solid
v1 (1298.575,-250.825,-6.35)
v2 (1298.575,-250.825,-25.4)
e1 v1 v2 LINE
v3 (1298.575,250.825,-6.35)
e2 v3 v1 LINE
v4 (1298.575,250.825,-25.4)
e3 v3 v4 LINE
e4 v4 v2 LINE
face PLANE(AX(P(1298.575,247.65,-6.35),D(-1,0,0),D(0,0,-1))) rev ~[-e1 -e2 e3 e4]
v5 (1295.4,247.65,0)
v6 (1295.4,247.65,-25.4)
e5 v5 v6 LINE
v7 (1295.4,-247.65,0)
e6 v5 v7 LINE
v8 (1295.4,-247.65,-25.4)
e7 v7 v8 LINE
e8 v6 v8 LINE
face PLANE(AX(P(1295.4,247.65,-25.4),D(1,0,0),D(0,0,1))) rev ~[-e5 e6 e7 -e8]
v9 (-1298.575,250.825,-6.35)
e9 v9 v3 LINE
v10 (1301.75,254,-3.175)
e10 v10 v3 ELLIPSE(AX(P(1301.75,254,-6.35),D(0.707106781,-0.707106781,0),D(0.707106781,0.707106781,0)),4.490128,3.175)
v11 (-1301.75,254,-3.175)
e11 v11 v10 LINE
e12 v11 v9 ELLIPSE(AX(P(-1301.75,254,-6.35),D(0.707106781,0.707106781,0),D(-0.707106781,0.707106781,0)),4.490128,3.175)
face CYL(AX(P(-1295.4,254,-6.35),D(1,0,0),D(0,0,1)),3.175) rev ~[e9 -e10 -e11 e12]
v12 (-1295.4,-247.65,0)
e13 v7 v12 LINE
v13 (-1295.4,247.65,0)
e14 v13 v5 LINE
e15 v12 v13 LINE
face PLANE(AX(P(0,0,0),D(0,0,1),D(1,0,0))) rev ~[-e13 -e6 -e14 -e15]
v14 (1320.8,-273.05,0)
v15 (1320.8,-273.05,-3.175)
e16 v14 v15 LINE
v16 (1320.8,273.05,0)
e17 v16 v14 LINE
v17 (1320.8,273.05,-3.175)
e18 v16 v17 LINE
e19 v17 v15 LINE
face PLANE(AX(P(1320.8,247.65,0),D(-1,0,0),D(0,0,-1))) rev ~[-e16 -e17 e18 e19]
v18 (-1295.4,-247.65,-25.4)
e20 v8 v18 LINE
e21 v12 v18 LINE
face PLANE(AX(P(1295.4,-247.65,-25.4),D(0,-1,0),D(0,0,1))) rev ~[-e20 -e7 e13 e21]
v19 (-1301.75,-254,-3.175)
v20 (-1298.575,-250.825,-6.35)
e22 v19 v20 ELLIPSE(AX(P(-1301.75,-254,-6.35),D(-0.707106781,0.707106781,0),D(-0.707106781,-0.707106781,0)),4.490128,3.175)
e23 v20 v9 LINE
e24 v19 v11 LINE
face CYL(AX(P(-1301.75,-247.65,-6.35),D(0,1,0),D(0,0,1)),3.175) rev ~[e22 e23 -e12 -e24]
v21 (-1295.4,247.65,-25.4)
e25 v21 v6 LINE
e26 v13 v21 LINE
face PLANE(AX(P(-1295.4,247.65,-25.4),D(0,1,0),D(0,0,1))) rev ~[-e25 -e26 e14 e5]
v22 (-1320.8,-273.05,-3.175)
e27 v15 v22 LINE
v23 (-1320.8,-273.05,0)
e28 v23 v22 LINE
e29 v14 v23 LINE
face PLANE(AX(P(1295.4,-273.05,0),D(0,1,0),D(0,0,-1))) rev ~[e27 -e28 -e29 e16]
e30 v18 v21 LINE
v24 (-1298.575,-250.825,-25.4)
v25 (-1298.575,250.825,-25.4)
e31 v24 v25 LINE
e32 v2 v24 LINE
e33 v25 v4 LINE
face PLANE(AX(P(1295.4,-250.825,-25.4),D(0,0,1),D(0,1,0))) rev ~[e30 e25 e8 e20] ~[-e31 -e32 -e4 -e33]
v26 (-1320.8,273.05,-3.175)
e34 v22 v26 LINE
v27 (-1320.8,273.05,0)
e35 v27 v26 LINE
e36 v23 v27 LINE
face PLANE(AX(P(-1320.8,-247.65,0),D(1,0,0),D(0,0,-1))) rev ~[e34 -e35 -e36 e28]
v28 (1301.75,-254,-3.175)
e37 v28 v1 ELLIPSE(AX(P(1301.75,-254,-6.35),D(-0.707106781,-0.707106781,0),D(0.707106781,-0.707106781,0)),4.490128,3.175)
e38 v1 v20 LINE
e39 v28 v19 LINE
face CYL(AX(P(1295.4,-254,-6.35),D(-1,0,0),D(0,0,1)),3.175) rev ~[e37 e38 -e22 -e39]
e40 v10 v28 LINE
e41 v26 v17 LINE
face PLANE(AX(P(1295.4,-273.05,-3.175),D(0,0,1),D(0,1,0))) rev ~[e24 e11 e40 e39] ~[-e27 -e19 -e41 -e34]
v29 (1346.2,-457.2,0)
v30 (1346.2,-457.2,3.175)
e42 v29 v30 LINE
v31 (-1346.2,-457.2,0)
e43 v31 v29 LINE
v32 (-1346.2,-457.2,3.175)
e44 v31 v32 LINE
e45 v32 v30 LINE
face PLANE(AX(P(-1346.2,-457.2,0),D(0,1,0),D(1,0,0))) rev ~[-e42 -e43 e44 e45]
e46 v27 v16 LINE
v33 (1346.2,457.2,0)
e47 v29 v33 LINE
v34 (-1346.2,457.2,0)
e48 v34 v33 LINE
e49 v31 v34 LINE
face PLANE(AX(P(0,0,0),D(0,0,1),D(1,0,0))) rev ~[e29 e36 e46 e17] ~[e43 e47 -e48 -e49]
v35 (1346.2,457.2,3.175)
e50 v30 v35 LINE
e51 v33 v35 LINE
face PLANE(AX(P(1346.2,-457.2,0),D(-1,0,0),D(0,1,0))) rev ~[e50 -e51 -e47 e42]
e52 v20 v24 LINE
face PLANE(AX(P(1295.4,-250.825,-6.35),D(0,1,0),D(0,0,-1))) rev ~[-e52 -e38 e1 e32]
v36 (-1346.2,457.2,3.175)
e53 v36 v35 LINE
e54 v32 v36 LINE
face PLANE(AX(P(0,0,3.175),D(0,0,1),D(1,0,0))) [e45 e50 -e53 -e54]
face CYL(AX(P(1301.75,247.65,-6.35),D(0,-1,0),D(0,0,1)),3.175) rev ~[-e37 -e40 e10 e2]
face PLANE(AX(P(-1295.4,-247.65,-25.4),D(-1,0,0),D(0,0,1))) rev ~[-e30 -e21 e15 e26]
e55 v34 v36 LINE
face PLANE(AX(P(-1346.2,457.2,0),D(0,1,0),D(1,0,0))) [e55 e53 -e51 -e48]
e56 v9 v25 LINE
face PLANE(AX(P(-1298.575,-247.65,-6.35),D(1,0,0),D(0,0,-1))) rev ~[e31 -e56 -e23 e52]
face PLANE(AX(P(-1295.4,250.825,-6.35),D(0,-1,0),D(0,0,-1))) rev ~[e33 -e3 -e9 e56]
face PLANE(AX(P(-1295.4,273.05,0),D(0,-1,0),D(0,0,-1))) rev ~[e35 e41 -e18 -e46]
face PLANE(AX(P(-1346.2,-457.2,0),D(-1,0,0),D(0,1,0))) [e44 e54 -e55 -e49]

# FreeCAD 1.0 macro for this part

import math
import FreeCAD as App
import Part
import Sketcher
Q = App.Units.Quantity


def add_polygon(sketch, points):
    """Adds a closed chain of lines whose ends are joined by coincident constraints."""
    first, n = sketch.GeometryCount, len(points)
    for a, b in zip(points, points[1:] + points[:1]):
        sketch.addGeometry(Part.LineSegment(App.Vector(*a, 0), App.Vector(*b, 0)), False)
    for i in range(n):
        sketch.addConstraint(Sketcher.Constraint("Coincident", first + i, 2, first + (i + 1) % n, 1))

doc = App.newDocument("Part")
body = doc.addObject("PartDesign::Body", "Body")

# Sketch on XY plane
sketch1 = doc.addObject("Sketcher::SketchObject", "Sketch")
body.addObject(sketch1)
sketch1.AttachmentSupport = (doc.XY_Plane, [""])
sketch1.MapMode = "FlatFace"
add_polygon(sketch1, [(-1346, 457), (-1346, -457), (1346, -457), (1346, 457)])  # lines 0-3
sketch1.addConstraint([
    Sketcher.Constraint("Vertical", 0),
    Sketcher.Constraint("Horizontal", 1),
    Sketcher.Constraint("Vertical", 2),
    Sketcher.Constraint("Horizontal", 3),
    Sketcher.Constraint("Symmetric", 0, 2, 2, 2, -1, 1),
    Sketcher.Constraint("DistanceX", 1, 1, 1, 2, Q("106 in")),
    Sketcher.Constraint("DistanceY", 0, 2, 0, 1, Q("36 in")),
])
pad1 = doc.addObject("PartDesign::Pad", "Pad")
body.addObject(pad1)
pad1.Profile = sketch1
pad1.Length = Q("0.125 in")

# Sketch on XZ plane
sketch2 = doc.addObject("Sketcher::SketchObject", "Sketch001")
body.addObject(sketch2)
sketch2.AttachmentSupport = (doc.XZ_Plane, [""])
sketch2.MapMode = "FlatFace"
sketch2.addGeometry([
    Part.LineSegment(App.Vector(-1295.4, -25.4, 0), App.Vector(-1295.4, 0, 0)),  # 0
    Part.LineSegment(App.Vector(-1295.4, 0, 0), App.Vector(-1320.8, 0, 0)),  # 1
    Part.LineSegment(App.Vector(-1320.8, 0, 0), App.Vector(-1320.8, -3.2, 0)),  # 2
    Part.LineSegment(App.Vector(-1320.8, -3.2, 0), App.Vector(-1301.8, -3.2, 0)),  # 3
    Part.ArcOfCircle(Part.Circle(App.Vector(-1301.8, -6.3, 0), App.Vector(0, 0, 1), 3.2), math.radians(0), math.radians(90)),  # 4
    Part.LineSegment(App.Vector(-1298.6, -6.3, 0), App.Vector(-1298.6, -25.4, 0)),  # 5
    Part.LineSegment(App.Vector(-1298.6, -25.4, 0), App.Vector(-1295.4, -25.4, 0)),  # 6
], False)
sketch2.addConstraint([
    Sketcher.Constraint("Coincident", 0, 2, 1, 1),
    Sketcher.Constraint("Coincident", 1, 2, 2, 1),
    Sketcher.Constraint("Coincident", 2, 2, 3, 1),
    Sketcher.Constraint("Tangent", 3, 2, 4, 2),
    Sketcher.Constraint("Tangent", 4, 1, 5, 1),
    Sketcher.Constraint("Coincident", 5, 2, 6, 1),
    Sketcher.Constraint("Coincident", 6, 2, 0, 1),
    Sketcher.Constraint("Vertical", 0),
    Sketcher.Constraint("Horizontal", 1),
    Sketcher.Constraint("Vertical", 2),
    Sketcher.Constraint("Horizontal", 3),
    Sketcher.Constraint("Vertical", 5),
    Sketcher.Constraint("Horizontal", 6),
    Sketcher.Constraint("PointOnObject", 0, 2, -1),
    Sketcher.Constraint("Equal", 1, 0),
    Sketcher.Constraint("Equal", 6, 2),
    Sketcher.Constraint("DistanceX", 1, 2, 1, 1, Q("1 in")),
    Sketcher.Constraint("DistanceX", 0, 2, -1, 1, Q("51 in")),
    Sketcher.Constraint("Radius", 4, Q("0.125 in")),
    Sketcher.Constraint("DistanceX", 3, 1, 3, 2, Q("0.75 in")),
])

# Sketch on XY plane
sketch3 = doc.addObject("Sketcher::SketchObject", "Sketch002")
body.addObject(sketch3)
sketch3.AttachmentSupport = (doc.XY_Plane, [""])
sketch3.MapMode = "FlatFace"
add_polygon(sketch3, [(-1295, -248), (-1295, 248), (1295, 248), (1295, -248)])  # lines 0-3
sketch3.addConstraint([
    Sketcher.Constraint("Vertical", 0),
    Sketcher.Constraint("Horizontal", 1),
    Sketcher.Constraint("Vertical", 2),
    Sketcher.Constraint("Horizontal", 3),
    Sketcher.Constraint("Symmetric", 0, 2, 2, 2, -1, 1),
    Sketcher.Constraint("DistanceX", 1, 1, 1, 2, Q("102 in")),
    Sketcher.Constraint("DistanceY", 0, 1, 0, 2, Q("19.5 in")),
])
doc.recompute()

additivepipe = doc.addObject("PartDesign::AdditivePipe", "AdditivePipe")
body.addObject(additivepipe)
additivepipe.Profile = sketch2
additivepipe.Spine = (sketch3, ["Edge1", "Edge2", "Edge3", "Edge4"])
additivepipe.Transition = "Right corner"

doc.recompute()
